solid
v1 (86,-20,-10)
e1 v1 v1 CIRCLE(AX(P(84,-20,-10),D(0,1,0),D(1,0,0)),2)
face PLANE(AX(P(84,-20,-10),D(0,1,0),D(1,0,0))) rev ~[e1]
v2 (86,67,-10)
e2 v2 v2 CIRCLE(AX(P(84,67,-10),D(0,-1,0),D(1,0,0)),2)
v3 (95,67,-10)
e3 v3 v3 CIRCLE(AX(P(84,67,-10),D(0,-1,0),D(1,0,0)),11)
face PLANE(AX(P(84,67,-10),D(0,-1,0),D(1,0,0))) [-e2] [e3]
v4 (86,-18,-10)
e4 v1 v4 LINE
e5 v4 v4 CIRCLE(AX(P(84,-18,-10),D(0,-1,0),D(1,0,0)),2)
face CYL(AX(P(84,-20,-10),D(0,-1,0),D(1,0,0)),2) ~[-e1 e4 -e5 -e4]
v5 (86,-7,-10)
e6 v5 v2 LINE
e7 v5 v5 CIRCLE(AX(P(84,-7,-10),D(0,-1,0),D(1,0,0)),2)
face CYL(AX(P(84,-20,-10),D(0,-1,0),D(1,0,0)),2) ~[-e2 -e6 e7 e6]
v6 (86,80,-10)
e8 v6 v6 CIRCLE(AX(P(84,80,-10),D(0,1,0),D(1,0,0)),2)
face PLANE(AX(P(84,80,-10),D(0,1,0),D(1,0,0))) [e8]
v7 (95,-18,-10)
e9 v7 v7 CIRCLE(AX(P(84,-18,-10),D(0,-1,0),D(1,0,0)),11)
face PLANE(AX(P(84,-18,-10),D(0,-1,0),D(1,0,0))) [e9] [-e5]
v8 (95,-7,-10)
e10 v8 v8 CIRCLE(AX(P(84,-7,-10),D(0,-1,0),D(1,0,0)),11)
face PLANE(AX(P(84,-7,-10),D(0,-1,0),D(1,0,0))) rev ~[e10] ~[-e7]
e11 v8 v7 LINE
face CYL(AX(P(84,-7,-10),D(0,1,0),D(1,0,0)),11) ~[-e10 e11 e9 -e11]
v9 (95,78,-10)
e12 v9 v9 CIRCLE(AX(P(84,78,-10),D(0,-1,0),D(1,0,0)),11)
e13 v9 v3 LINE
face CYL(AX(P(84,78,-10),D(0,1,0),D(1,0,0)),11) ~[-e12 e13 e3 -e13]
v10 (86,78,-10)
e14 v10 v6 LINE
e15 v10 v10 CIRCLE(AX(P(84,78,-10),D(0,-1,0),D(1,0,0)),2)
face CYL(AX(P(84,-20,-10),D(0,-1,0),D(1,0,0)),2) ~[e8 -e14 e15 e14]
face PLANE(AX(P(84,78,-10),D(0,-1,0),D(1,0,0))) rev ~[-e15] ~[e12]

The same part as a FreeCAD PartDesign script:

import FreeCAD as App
import Part
import Sketcher

doc = App.newDocument("Part")
body = doc.addObject("PartDesign::Body", "Body")

sketch1 = body.newObject("Sketcher::SketchObject", "Sketch")
sketch1.AttachmentSupport = (doc.getObject("XY_Plane"), [""])
sketch1.MapMode = "FlatFace"
sketch1.addGeometry(Part.Circle(App.Vector(0, 0, 0), App.Vector(0, 0, 1), 11), False)
sketch1.addConstraint(Sketcher.Constraint("Coincident", 0, 3, -1, 1))
sketch1.addConstraint(Sketcher.Constraint("Diameter", 0, 22.0))
pad1 = body.newObject("PartDesign::Pad", "Pad")
pad1.Profile = sketch1
pad1.Length = 11
body2 = doc.addObject("PartDesign::Body", "Body001")
doc.recompute()

body.Placement = App.Placement(App.Vector(0, 0, 0), App.Rotation(App.Vector(1, 0, 0), 90))
boolean = body2.newObject("PartDesign::Boolean", "Boolean")
boolean.Type = "Fuse"
boolean.addObjects([body])
body3 = doc.addObject("PartDesign::Body", "Body002")
doc.recompute()

body2.Placement = App.Placement(App.Vector(20, 78, 14), App.Rotation(App.Vector(0, 0, 1), 0))
boolean2 = body3.newObject("PartDesign::Boolean", "Boolean001")
boolean2.Type = "Fuse"
boolean2.addObjects([body2])
body4 = doc.addObject("PartDesign::Body", "Body003")

sketch2 = body4.newObject("Sketcher::SketchObject", "Sketch001")
sketch2.AttachmentSupport = (doc.getObject("XY_Plane003"), [""])
sketch2.MapMode = "FlatFace"
sketch2.addGeometry(Part.Circle(App.Vector(0, 0, 0), App.Vector(0, 0, 1), 11), False)
sketch2.addConstraint(Sketcher.Constraint("Coincident", 0, 3, -1, 1))
sketch2.addConstraint(Sketcher.Constraint("Diameter", 0, 22.0))
pad2 = body4.newObject("PartDesign::Pad", "Pad001")
pad2.Profile = sketch2
pad2.Length = 11
body5 = doc.addObject("PartDesign::Body", "Body004")
doc.recompute()

body4.Placement = App.Placement(App.Vector(0, 0, 0), App.Rotation(App.Vector(1, 0, 0), 90))
boolean3 = body5.newObject("PartDesign::Boolean", "Boolean002")
boolean3.Type = "Fuse"
boolean3.addObjects([body4])
body6 = doc.addObject("PartDesign::Body", "Body005")
doc.recompute()

body5.Placement = App.Placement(App.Vector(20, -7, 14), App.Rotation(App.Vector(0, 0, 1), 0))
boolean4 = body6.newObject("PartDesign::Boolean", "Boolean003")
boolean4.Type = "Fuse"
boolean4.addObjects([body5])
body7 = doc.addObject("PartDesign::Body", "Body006")

sketch3 = body7.newObject("Sketcher::SketchObject", "Sketch002")
sketch3.AttachmentSupport = (doc.getObject("XY_Plane006"), [""])
sketch3.MapMode = "FlatFace"
sketch3.addGeometry(Part.Circle(App.Vector(0, 0, 0), App.Vector(0, 0, 1), 2), False)
sketch3.addConstraint(Sketcher.Constraint("Coincident", 0, 3, -1, 1))
sketch3.addConstraint(Sketcher.Constraint("Diameter", 0, 4.0))
pad3 = body7.newObject("PartDesign::Pad", "Pad002")
pad3.Profile = sketch3
pad3.Length = 100
body8 = doc.addObject("PartDesign::Body", "Body007")
doc.recompute()

body7.Placement = App.Placement(App.Vector(0, 0, 0), App.Rotation(App.Vector(1, 0, 0), 270))
boolean5 = body8.newObject("PartDesign::Boolean", "Boolean004")
boolean5.Type = "Fuse"
boolean5.addObjects([body7])
body9 = doc.addObject("PartDesign::Body", "Body008")
doc.recompute()

body8.Placement = App.Placement(App.Vector(20, -20, 14), App.Rotation(App.Vector(0, 0, 1), 0))
boolean6 = body9.newObject("PartDesign::Boolean", "Boolean005")
boolean6.Type = "Fuse"
boolean6.addObjects([body8])
doc.recompute()

boolean7 = body9.newObject("PartDesign::Boolean", "Boolean006")
boolean7.Type = "Fuse"
boolean7.addObjects([body3])
doc.recompute()

boolean8 = body9.newObject("PartDesign::Boolean", "Boolean007")
boolean8.Type = "Fuse"
boolean8.addObjects([body6])
body10 = doc.addObject("PartDesign::Body", "Body009")
doc.recompute()

body9.Placement = App.Placement(App.Vector(64, 0, -24), App.Rotation(App.Vector(0, 0, 1), 0))
boolean9 = body10.newObject("PartDesign::Boolean", "Boolean008")
boolean9.Type = "Fuse"
boolean9.addObjects([body9])

doc.recompute()
